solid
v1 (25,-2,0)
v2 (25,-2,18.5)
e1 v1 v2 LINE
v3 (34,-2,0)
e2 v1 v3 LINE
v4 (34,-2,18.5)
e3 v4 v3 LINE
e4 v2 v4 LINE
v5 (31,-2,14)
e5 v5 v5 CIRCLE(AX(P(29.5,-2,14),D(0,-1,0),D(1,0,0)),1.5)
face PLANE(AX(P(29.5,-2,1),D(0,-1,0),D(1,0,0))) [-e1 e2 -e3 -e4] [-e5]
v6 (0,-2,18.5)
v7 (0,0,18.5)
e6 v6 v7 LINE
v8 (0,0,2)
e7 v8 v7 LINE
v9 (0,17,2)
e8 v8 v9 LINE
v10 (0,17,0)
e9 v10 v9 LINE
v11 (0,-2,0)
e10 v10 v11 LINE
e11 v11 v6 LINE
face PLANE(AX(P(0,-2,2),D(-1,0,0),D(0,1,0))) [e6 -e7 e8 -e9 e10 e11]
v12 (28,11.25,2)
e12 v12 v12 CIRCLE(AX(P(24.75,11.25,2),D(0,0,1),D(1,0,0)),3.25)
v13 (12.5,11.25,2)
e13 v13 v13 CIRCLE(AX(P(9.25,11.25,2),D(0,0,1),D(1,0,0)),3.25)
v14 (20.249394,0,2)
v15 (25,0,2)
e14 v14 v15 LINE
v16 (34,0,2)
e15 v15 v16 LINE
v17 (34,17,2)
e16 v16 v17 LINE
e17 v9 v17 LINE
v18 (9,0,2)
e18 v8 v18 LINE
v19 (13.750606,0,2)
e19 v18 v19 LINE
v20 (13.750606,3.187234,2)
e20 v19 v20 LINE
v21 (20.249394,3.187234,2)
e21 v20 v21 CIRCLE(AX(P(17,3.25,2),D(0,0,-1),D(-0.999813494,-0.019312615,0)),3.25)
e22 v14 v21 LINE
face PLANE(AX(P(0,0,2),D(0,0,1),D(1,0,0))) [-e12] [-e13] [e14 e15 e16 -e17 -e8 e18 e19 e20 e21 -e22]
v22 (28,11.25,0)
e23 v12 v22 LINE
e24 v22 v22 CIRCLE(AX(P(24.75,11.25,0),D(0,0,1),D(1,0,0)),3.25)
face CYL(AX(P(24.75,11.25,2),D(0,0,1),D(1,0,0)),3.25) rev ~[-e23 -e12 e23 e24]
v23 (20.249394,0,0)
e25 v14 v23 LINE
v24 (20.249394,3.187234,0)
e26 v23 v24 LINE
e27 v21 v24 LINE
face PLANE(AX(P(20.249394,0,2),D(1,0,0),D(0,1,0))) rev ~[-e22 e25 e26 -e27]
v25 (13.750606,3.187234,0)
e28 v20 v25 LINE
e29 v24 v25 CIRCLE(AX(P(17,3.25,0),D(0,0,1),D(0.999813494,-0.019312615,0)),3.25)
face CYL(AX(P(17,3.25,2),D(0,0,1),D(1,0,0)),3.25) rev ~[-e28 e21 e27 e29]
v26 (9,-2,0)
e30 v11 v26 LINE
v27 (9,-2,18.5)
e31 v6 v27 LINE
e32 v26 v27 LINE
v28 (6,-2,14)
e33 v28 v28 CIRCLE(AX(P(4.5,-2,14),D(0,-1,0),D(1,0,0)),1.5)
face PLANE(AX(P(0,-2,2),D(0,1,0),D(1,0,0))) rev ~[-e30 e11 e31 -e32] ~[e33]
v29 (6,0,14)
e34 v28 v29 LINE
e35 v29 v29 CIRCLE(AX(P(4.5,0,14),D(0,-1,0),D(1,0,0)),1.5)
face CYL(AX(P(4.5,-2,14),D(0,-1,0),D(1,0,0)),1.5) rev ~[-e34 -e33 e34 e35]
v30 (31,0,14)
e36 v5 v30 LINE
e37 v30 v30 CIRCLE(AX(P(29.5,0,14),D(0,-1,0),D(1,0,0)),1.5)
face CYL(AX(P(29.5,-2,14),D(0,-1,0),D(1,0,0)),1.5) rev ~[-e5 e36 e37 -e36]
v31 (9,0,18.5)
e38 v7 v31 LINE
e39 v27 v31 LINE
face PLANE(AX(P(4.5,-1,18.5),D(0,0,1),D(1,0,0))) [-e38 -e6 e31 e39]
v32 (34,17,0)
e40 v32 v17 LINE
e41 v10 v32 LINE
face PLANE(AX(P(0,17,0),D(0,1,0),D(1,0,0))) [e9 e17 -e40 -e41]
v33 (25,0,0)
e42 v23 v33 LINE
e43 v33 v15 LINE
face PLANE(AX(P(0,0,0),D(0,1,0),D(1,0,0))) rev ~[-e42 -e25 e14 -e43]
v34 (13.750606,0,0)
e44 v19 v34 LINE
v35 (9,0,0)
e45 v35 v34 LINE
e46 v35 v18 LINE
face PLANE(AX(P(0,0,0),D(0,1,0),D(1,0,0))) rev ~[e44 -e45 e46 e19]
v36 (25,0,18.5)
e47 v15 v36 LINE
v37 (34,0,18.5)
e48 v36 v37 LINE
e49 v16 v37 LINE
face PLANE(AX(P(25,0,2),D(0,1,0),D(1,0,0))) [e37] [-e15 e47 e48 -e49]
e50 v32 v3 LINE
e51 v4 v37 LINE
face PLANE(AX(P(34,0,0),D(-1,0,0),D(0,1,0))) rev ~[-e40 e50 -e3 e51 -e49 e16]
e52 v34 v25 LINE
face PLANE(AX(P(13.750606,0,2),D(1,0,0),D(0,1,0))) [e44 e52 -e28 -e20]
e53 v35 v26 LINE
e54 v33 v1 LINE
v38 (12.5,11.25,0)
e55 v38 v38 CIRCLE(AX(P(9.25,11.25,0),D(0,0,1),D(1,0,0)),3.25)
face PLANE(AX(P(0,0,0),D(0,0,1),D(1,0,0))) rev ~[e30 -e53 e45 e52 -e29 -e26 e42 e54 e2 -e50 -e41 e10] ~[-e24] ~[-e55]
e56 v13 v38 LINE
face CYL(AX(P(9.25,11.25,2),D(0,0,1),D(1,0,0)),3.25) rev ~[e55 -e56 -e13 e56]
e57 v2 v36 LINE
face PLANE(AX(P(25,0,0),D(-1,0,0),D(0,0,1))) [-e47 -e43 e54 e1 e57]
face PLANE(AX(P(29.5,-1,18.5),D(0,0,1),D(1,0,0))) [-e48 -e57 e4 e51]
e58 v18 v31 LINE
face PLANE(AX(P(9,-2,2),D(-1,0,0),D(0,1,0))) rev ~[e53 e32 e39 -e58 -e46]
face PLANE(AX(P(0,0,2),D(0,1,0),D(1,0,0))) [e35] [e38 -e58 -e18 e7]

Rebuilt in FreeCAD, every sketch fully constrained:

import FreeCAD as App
import Part
import Sketcher
from FreeCAD import Vector


def add_polygon(sketch, points):
    """Adds a closed chain of lines whose ends are joined by coincident constraints."""
    first, n = sketch.GeometryCount, len(points)
    for a, b in zip(points, points[1:] + points[:1]):
        sketch.addGeometry(Part.LineSegment(App.Vector(*a, 0), App.Vector(*b, 0)), False)
    for i in range(n):
        sketch.addConstraint(Sketcher.Constraint("Coincident", first + i, 2, first + (i + 1) % n, 1))

doc = App.newDocument("Part")
params = doc.addObject("Spreadsheet::Sheet", "Params")
for row, (alias, value) in enumerate([
    ("sketch1_width", "34 mm"),
    ("sketch1_height", "17 mm"),
    ("pad1_length", "2 mm"),
    ("sketch2_diameter", "6.5 mm"),
    ("pocket1_length", "2 mm"),
    ("pocket2_length", "2 mm"),
    ("sketch4_width", "9 mm"),
    ("sketch4_height", "2 mm"),
    ("pad2_length", "2 mm"),
    ("sketch5_width", "9 mm"),
    ("sketch5_height", "2 mm"),
    ("pad3_length", "16.5 mm"),
    ("sketch6_diameter", "3 mm"),
    ("pocket3_length", "2 mm"),
], start=1):
    params.set(f"A{row}", alias)
    params.set(f"B{row}", "=" + value)
    params.setAlias(f"B{row}", alias)

body = doc.addObject("PartDesign::Body", "Body")

# Sketch on XY plane
sketch1 = doc.addObject("Sketcher::SketchObject", "Sketch")
body.addObject(sketch1)
sketch1.AttachmentSupport = (doc.XY_Plane, [""])
sketch1.MapMode = "FlatFace"
add_polygon(sketch1, [(0, 17), (0, 0), (34, 0), (34, 17)])  # lines 0-3
sketch1.addConstraint(Sketcher.Constraint("Vertical", 0))
sketch1.addConstraint(Sketcher.Constraint("Horizontal", 1))
sketch1.addConstraint(Sketcher.Constraint("Vertical", 2))
sketch1.addConstraint(Sketcher.Constraint("Horizontal", 3))
sketch1.addConstraint(Sketcher.Constraint("Coincident", 0, 2, -1, 1))
sketch1.addConstraint(Sketcher.Constraint("DistanceX", 1, 1, 1, 2, 34.0))
sketch1.addConstraint(Sketcher.Constraint("DistanceY", 0, 2, 0, 1, 17.0))
sketch1.setExpression("Constraints[9]", "Params.sketch1_width")
sketch1.setExpression("Constraints[10]", "Params.sketch1_height")
pad1 = doc.addObject("PartDesign::Pad", "Pad")
body.addObject(pad1)
pad1.Profile = sketch1
pad1.setExpression("Length", "Params.pad1_length")

# Sketch on XY plane
sketch2 = doc.addObject("Sketcher::SketchObject", "Sketch001")
body.addObject(sketch2)
sketch2.AttachmentSupport = (doc.XY_Plane, [""])
sketch2.MapMode = "FlatFace"
sketch2.AttachmentOffset = App.Placement(Vector(0, 0, 2), App.Rotation())
sketch2.addGeometry(Part.Circle(Vector(9.2, 11.2, 0), Vector(0, 0, 1), 3.2), False)
sketch2.addGeometry(Part.Circle(Vector(24.8, 11.2, 0), Vector(0, 0, 1), 3.2), False)
sketch2.addGeometry(Part.Circle(Vector(17, 3.2, 0), Vector(0, 0, 1), 3.2), False)
sketch2.addConstraint(Sketcher.Constraint("Equal", 0, 1))
sketch2.addConstraint(Sketcher.Constraint("Equal", 1, 2))
sketch2.addConstraint(Sketcher.Constraint("Horizontal", 0, 3, 1, 3))
sketch2.addConstraint(Sketcher.Constraint("Diameter", 0, 6.5))
sketch2.addConstraint(Sketcher.Constraint("DistanceX", -1, 1, 2, 3, 17.0))
sketch2.addConstraint(Sketcher.Constraint("DistanceY", 2, 3, 0, 3, 8.0))
sketch2.addConstraint(Sketcher.Constraint("DistanceX", 0, 3, 1, 3, 15.5))
sketch2.addConstraint(Sketcher.Constraint("DistanceX", -1, 1, 0, 3, 9.25))
sketch2.addConstraint(Sketcher.Constraint("DistanceY", -1, 1, 0, 3, 11.25))
sketch2.setExpression("Constraints[3]", "Params.sketch2_diameter")
pocket1 = doc.addObject("PartDesign::Pocket", "Pocket")
body.addObject(pocket1)
pocket1.Profile = sketch2
pocket1.setExpression("Length", "Params.pocket1_length")

# Sketch on XY plane
sketch3 = doc.addObject("Sketcher::SketchObject", "Sketch002")
body.addObject(sketch3)
sketch3.AttachmentSupport = (doc.XY_Plane, [""])
sketch3.MapMode = "FlatFace"
sketch3.AttachmentOffset = App.Placement(Vector(0, 0, 2), App.Rotation())
add_polygon(sketch3, [(13.8, 3.2), (13.8, 0), (20.2, 0), (20.2, 3.2)])  # lines 0-3
sketch3.addConstraint(Sketcher.Constraint("Vertical", 0))
sketch3.addConstraint(Sketcher.Constraint("Horizontal", 1))
sketch3.addConstraint(Sketcher.Constraint("Vertical", 2))
sketch3.addConstraint(Sketcher.Constraint("Horizontal", 3))
sketch3.addConstraint(Sketcher.Constraint("PointOnObject", 0, 2, -1))
sketch3.addConstraint(Sketcher.Constraint("DistanceX", 1, 1, 1, 2, 6.498788))
sketch3.addConstraint(Sketcher.Constraint("DistanceY", 0, 2, 0, 1, 3.187234))
sketch3.addConstraint(Sketcher.Constraint("DistanceX", -1, 1, 0, 2, 13.750606))
pocket2 = doc.addObject("PartDesign::Pocket", "Pocket001")
body.addObject(pocket2)
pocket2.Profile = sketch3
pocket2.setExpression("Length", "Params.pocket2_length")

# Sketch on XZ plane
sketch4 = doc.addObject("Sketcher::SketchObject", "Sketch003")
body.addObject(sketch4)
sketch4.AttachmentSupport = (doc.XZ_Plane, [""])
sketch4.MapMode = "FlatFace"
add_polygon(sketch4, [(0, 2), (0, 0), (9, 0), (9, 2)])  # lines 0-3
add_polygon(sketch4, [(25, 2), (25, 0), (34, 0), (34, 2)])  # lines 4-7
sketch4.addConstraint(Sketcher.Constraint("Vertical", 0))
sketch4.addConstraint(Sketcher.Constraint("Horizontal", 1))
sketch4.addConstraint(Sketcher.Constraint("Vertical", 2))
sketch4.addConstraint(Sketcher.Constraint("Horizontal", 3))
sketch4.addConstraint(Sketcher.Constraint("Vertical", 4))
sketch4.addConstraint(Sketcher.Constraint("Horizontal", 5))
sketch4.addConstraint(Sketcher.Constraint("Vertical", 6))
sketch4.addConstraint(Sketcher.Constraint("Horizontal", 7))
sketch4.addConstraint(Sketcher.Constraint("Coincident", 0, 2, -1, 1))
sketch4.addConstraint(Sketcher.Constraint("PointOnObject", 4, 2, -1))
sketch4.addConstraint(Sketcher.Constraint("Horizontal", 3, 2, 6, 2))
sketch4.addConstraint(Sketcher.Constraint("Equal", 3, 5))
sketch4.addConstraint(Sketcher.Constraint("DistanceX", 1, 1, 1, 2, 9.0))
sketch4.addConstraint(Sketcher.Constraint("DistanceY", 0, 2, 0, 1, 2.0))
sketch4.addConstraint(Sketcher.Constraint("DistanceX", -1, 1, 4, 2, 25.0))
sketch4.setExpression("Constraints[20]", "Params.sketch4_width")
sketch4.setExpression("Constraints[21]", "Params.sketch4_height")
pad2 = doc.addObject("PartDesign::Pad", "Pad001")
body.addObject(pad2)
pad2.Profile = sketch4
pad2.setExpression("Length", "Params.pad2_length")

# Sketch on XY plane
sketch5 = doc.addObject("Sketcher::SketchObject", "Sketch004")
body.addObject(sketch5)
sketch5.AttachmentSupport = (doc.XY_Plane, [""])
sketch5.MapMode = "FlatFace"
sketch5.AttachmentOffset = App.Placement(Vector(0, 0, 2), App.Rotation())
add_polygon(sketch5, [(0, 0), (0, -2), (9, -2), (9, 0)])  # lines 0-3
add_polygon(sketch5, [(25, 0), (25, -2), (34, -2), (34, 0)])  # lines 4-7
sketch5.addConstraint(Sketcher.Constraint("Vertical", 0))
sketch5.addConstraint(Sketcher.Constraint("Horizontal", 1))
sketch5.addConstraint(Sketcher.Constraint("Vertical", 2))
sketch5.addConstraint(Sketcher.Constraint("Horizontal", 3))
sketch5.addConstraint(Sketcher.Constraint("Vertical", 4))
sketch5.addConstraint(Sketcher.Constraint("Horizontal", 5))
sketch5.addConstraint(Sketcher.Constraint("Vertical", 6))
sketch5.addConstraint(Sketcher.Constraint("Horizontal", 7))
sketch5.addConstraint(Sketcher.Constraint("Coincident", 3, 2, -1, 1))
sketch5.addConstraint(Sketcher.Constraint("PointOnObject", 6, 2, -1))
sketch5.addConstraint(Sketcher.Constraint("Horizontal", 1, 2, 4, 2))
sketch5.addConstraint(Sketcher.Constraint("Equal", 3, 5))
sketch5.addConstraint(Sketcher.Constraint("DistanceX", 1, 1, 1, 2, 9.0))
sketch5.addConstraint(Sketcher.Constraint("DistanceY", 0, 2, 0, 1, 2.0))
sketch5.addConstraint(Sketcher.Constraint("DistanceX", -1, 1, 4, 2, 25.0))
sketch5.setExpression("Constraints[20]", "Params.sketch5_width")
sketch5.setExpression("Constraints[21]", "Params.sketch5_height")
pad3 = doc.addObject("PartDesign::Pad", "Pad002")
body.addObject(pad3)
pad3.Profile = sketch5
pad3.setExpression("Length", "Params.pad3_length")

# Sketch on XZ plane
sketch6 = doc.addObject("Sketcher::SketchObject", "Sketch005")
body.addObject(sketch6)
sketch6.AttachmentSupport = (doc.XZ_Plane, [""])
sketch6.MapMode = "FlatFace"
sketch6.AttachmentOffset = App.Placement(Vector(0, 0, 2), App.Rotation())
sketch6.addGeometry(Part.Circle(Vector(4.5, 14, 0), Vector(0, 0, 1), 1.5), False)
sketch6.addGeometry(Part.Circle(Vector(29.5, 14, 0), Vector(0, 0, 1), 1.5), False)
sketch6.addConstraint(Sketcher.Constraint("Equal", 0, 1))
sketch6.addConstraint(Sketcher.Constraint("Horizontal", 0, 3, 1, 3))
sketch6.addConstraint(Sketcher.Constraint("Diameter", 0, 3.0))
sketch6.addConstraint(Sketcher.Constraint("DistanceY", -1, 1, 0, 3, 14.0))
sketch6.addConstraint(Sketcher.Constraint("DistanceX", 0, 3, 1, 3, 25.0))
sketch6.addConstraint(Sketcher.Constraint("DistanceX", -1, 1, 0, 3, 4.5))
sketch6.setExpression("Constraints[2]", "Params.sketch6_diameter")
pocket3 = doc.addObject("PartDesign::Pocket", "Pocket002")
body.addObject(pocket3)
pocket3.Profile = sketch6
pocket3.setExpression("Length", "Params.pocket3_length")

doc.recompute()
